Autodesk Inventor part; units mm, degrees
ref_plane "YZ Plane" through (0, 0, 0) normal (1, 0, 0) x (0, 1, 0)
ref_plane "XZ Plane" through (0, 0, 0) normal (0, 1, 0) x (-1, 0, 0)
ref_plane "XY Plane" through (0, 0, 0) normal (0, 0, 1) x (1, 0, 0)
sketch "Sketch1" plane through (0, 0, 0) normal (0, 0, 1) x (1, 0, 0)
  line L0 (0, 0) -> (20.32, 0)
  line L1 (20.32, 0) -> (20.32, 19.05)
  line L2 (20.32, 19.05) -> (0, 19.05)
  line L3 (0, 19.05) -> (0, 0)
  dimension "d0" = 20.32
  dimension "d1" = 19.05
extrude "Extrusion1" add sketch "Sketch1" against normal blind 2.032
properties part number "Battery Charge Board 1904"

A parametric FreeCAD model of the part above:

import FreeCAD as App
import Part
import Sketcher
Q = App.Units.Quantity


def add_polygon(sketch, points):
    """Adds a closed chain of lines whose ends are joined by coincident constraints."""
    first, n = sketch.GeometryCount, len(points)
    for a, b in zip(points, points[1:] + points[:1]):
        sketch.addGeometry(Part.LineSegment(App.Vector(*a, 0), App.Vector(*b, 0)), False)
    for i in range(n):
        sketch.addConstraint(Sketcher.Constraint("Coincident", first + i, 2, first + (i + 1) % n, 1))

doc = App.newDocument("Part")
params = doc.addObject("Spreadsheet::Sheet", "Params")
for row, (alias, value) in enumerate([
    ("sketch1_width", "0.8 in"),
    ("sketch1_height", "0.75 in"),
    ("pad1_length", "0.08 in"),
], start=1):
    params.set(f"A{row}", alias)
    params.set(f"B{row}", "=" + value)
    params.setAlias(f"B{row}", alias)

body = doc.addObject("PartDesign::Body", "Body")

sketch1 = body.newObject("Sketcher::SketchObject", "Sketch")
sketch1.AttachmentSupport = (doc.getObject("XY_Plane"), [""])
sketch1.MapMode = "FlatFace"
add_polygon(sketch1, [(0, 19.05), (0, 0), (20.32, 0), (20.32, 19.05)])
sketch1.addConstraint(Sketcher.Constraint("Vertical", 0))
sketch1.addConstraint(Sketcher.Constraint("Horizontal", 1))
sketch1.addConstraint(Sketcher.Constraint("Vertical", 2))
sketch1.addConstraint(Sketcher.Constraint("Horizontal", 3))
sketch1.addConstraint(Sketcher.Constraint("Coincident", 0, 2, -1, 1))
sketch1.addConstraint(Sketcher.Constraint("DistanceX", 1, 1, 1, 2, Q("0.8 in")))
sketch1.addConstraint(Sketcher.Constraint("DistanceY", 0, 2, 0, 1, Q("0.75 in")))
sketch1.setExpression("Constraints[9]", "Params.sketch1_width")
sketch1.setExpression("Constraints[10]", "Params.sketch1_height")
pad1 = body.newObject("PartDesign::Pad", "Pad")
pad1.Profile = sketch1
pad1.setExpression("Length", "Params.pad1_length")
pad1.Reversed = True

doc.recompute()
